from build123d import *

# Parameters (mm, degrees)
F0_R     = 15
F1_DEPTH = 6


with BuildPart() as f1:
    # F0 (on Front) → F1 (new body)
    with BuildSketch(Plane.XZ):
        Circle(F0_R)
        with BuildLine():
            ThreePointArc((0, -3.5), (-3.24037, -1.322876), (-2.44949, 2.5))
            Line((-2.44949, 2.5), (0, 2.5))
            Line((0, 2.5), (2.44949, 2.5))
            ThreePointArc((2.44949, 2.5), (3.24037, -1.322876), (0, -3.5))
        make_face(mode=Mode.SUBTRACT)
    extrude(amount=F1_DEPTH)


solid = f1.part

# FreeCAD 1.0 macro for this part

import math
import FreeCAD as App
import Part
import Sketcher
from FreeCAD import Vector

doc = App.newDocument("Part")
body = doc.addObject("PartDesign::Body", "Body")

sketch1 = body.newObject("Sketcher::SketchObject", "Sketch")
sketch1.AttachmentSupport = (doc.getObject("XZ_Plane"), [""])
sketch1.MapMode = "FlatFace"
sketch1.addGeometry([
    Part.Circle(Vector(0, 0, 0), Vector(0, 0, 1), 15),
    Part.ArcOfCircle(Part.Circle(Vector(0, 0, 0), Vector(0, 0, 1), 3.5), math.radians(-90), math.radians(46)),
    Part.ArcOfCircle(Part.Circle(Vector(0, 0, 0), Vector(0, 0, 1), 3.5), math.radians(134), math.radians(270)),
    Part.LineSegment(Vector(-2.4, 2.5, 0), Vector(2.4, 2.5, 0)),
], False)
sketch1.addConstraint([
    Sketcher.Constraint("Tangent", 1, 1, 2, 2),
    Sketcher.Constraint("Coincident", 2, 1, 3, 1),
    Sketcher.Constraint("Coincident", 3, 2, 1, 2),
    Sketcher.Constraint("Horizontal", 3),
    Sketcher.Constraint("Coincident", 0, 3, -1, 1),
    Sketcher.Constraint("Coincident", 1, 3, -1, 1),
    Sketcher.Constraint("Equal", 1, 2),
    Sketcher.Constraint("PointOnObject", 1, 1, -2),
    Sketcher.Constraint("Diameter", 0, 30.0),
    Sketcher.Constraint("Radius", 1, 3.5),
    Sketcher.Constraint("DistanceY", 1, 1, 2, 1, 6.0),
])
pad1 = body.newObject("PartDesign::Pad", "Pad")
pad1.Profile = sketch1
pad1.Length = 6

doc.recompute()
